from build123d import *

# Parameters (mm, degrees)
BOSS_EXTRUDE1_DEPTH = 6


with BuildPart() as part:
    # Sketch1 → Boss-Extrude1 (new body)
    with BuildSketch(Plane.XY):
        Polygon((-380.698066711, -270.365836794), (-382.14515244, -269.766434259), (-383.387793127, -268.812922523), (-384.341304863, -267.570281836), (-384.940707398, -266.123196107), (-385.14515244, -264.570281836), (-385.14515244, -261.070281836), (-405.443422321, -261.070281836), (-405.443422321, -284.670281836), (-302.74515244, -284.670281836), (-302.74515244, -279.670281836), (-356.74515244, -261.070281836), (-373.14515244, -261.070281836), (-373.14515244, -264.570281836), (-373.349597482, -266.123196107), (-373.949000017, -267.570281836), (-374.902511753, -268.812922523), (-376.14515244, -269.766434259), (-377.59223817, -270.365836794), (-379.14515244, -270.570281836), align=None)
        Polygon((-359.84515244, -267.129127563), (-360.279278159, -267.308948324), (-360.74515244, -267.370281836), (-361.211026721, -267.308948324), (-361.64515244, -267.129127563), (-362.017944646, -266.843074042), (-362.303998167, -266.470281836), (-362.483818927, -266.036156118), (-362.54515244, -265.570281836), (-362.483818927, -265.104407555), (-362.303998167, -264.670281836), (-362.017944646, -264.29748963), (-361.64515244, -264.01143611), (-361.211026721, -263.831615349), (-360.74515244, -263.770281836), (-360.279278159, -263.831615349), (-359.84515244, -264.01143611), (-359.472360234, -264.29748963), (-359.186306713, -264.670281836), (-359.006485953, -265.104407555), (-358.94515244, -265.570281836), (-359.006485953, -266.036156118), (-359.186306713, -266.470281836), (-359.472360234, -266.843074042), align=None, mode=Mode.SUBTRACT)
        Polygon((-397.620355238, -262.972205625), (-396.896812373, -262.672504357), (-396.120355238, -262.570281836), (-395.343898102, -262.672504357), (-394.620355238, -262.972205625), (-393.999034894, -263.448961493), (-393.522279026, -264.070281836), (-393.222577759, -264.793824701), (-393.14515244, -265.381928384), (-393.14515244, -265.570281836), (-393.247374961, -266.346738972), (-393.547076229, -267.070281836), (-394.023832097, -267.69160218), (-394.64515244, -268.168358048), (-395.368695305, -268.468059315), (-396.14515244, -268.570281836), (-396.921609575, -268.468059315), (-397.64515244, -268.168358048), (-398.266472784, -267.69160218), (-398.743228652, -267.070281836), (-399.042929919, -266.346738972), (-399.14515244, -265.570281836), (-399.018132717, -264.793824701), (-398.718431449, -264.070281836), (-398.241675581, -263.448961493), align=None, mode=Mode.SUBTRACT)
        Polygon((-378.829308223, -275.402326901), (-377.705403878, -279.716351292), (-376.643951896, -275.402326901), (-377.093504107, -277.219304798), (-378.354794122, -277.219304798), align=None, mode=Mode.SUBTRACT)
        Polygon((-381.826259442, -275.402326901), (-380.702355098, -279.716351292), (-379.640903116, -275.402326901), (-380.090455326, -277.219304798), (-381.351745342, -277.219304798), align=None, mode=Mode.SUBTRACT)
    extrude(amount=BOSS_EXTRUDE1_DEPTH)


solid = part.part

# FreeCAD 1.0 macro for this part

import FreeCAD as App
import Part
import Sketcher
Q = App.Units.Quantity


def add_polygon(sketch, points):
    """Adds a closed chain of lines whose ends are joined by coincident constraints."""
    first, n = sketch.GeometryCount, len(points)
    for a, b in zip(points, points[1:] + points[:1]):
        sketch.addGeometry(Part.LineSegment(App.Vector(*a, 0), App.Vector(*b, 0)), False)
    for i in range(n):
        sketch.addConstraint(Sketcher.Constraint("Coincident", first + i, 2, first + (i + 1) % n, 1))

doc = App.newDocument("Part")
body = doc.addObject("PartDesign::Body", "Body")

# Sketch on XY plane
sketch1 = body.newObject("Sketcher::SketchObject", "Sketch")
sketch1.AttachmentSupport = (doc.getObject("XY_Plane"), [""])
sketch1.MapMode = "FlatFace"
add_polygon(sketch1, [(-380.698067, -270.365837), (-382.145152, -269.766434), (-383.387793, -268.812923), (-384.341305, -267.570282), (-384.940707, -266.123196), (-385.145152, -264.570282), (-385.145152, -261.070282), (-405.443422, -261.070282), (-405.443422, -284.670282), (-302.745152, -284.670282), (-302.745152, -279.670282), (-356.745152, -261.070282), (-373.145152, -261.070282), (-373.145152, -264.570282), (-373.349597, -266.123196), (-373.949, -267.570282), (-374.902512, -268.812923), (-376.145152, -269.766434), (-377.592238, -270.365837), (-379.145152, -270.570282)])  # lines 0-19
add_polygon(sketch1, [(-380.702355, -279.716351), (-381.826259, -275.402327), (-381.351745, -277.219305), (-380.090455, -277.219305), (-379.640903, -275.402327)])  # lines 20-24
add_polygon(sketch1, [(-377.705404, -279.716351), (-378.829308, -275.402327), (-378.354794, -277.219305), (-377.093504, -277.219305), (-376.643952, -275.402327)])  # lines 25-29
add_polygon(sketch1, [(-398.241676, -263.448961), (-397.620355, -262.972206), (-396.896812, -262.672504), (-396.120355, -262.570282), (-395.343898, -262.672504), (-394.620355, -262.972206), (-393.999035, -263.448961), (-393.522279, -264.070282), (-393.222578, -264.793825), (-393.145152, -265.381928), (-393.145152, -265.570282), (-393.247375, -266.346739), (-393.547076, -267.070282), (-394.023832, -267.691602), (-394.645152, -268.168358), (-395.368695, -268.468059), (-396.145152, -268.570282), (-396.92161, -268.468059), (-397.645152, -268.168358), (-398.266473, -267.691602), (-398.743229, -267.070282), (-399.04293, -266.346739), (-399.145152, -265.570282), (-399.018133, -264.793825), (-398.718431, -264.070282)])  # lines 30-54
add_polygon(sketch1, [(-359.47236, -266.843074), (-359.845152, -267.129128), (-360.279278, -267.308948), (-360.745152, -267.370282), (-361.211027, -267.308948), (-361.645152, -267.129128), (-362.017945, -266.843074), (-362.303998, -266.470282), (-362.483819, -266.036156), (-362.545152, -265.570282), (-362.483819, -265.104408), (-362.303998, -264.670282), (-362.017945, -264.29749), (-361.645152, -264.011436), (-361.211027, -263.831615), (-360.745152, -263.770282), (-360.279278, -263.831615), (-359.845152, -264.011436), (-359.47236, -264.29749), (-359.186307, -264.670282), (-359.006486, -265.104408), (-358.945152, -265.570282), (-359.006486, -266.036156), (-359.186307, -266.470282)])  # lines 55-78
sketch1.addConstraint(Sketcher.Constraint("Vertical", 5))
sketch1.addConstraint(Sketcher.Constraint("Horizontal", 6))
sketch1.addConstraint(Sketcher.Constraint("Vertical", 7))
sketch1.addConstraint(Sketcher.Constraint("Horizontal", 8))
sketch1.addConstraint(Sketcher.Constraint("Vertical", 9))
sketch1.addConstraint(Sketcher.Constraint("Horizontal", 11))
sketch1.addConstraint(Sketcher.Constraint("Vertical", 12))
sketch1.addConstraint(Sketcher.Constraint("Horizontal", 22))
sketch1.addConstraint(Sketcher.Constraint("Horizontal", 27))
sketch1.addConstraint(Sketcher.Constraint("Vertical", 39))
sketch1.addConstraint(Sketcher.Constraint("Perpendicular", 0, 14))
sketch1.addConstraint(Sketcher.Constraint("Perpendicular", 1, 15))
sketch1.addConstraint(Sketcher.Constraint("Perpendicular", 2, 16))
sketch1.addConstraint(Sketcher.Constraint("Perpendicular", 3, 17))
sketch1.addConstraint(Sketcher.Constraint("Perpendicular", 4, 18))
sketch1.addConstraint(Sketcher.Constraint("Perpendicular", 13, 19))
sketch1.addConstraint(Sketcher.Constraint("Parallel", 20, 25))
sketch1.addConstraint(Sketcher.Constraint("Parallel", 21, 26))
sketch1.addConstraint(Sketcher.Constraint("Parallel", 23, 28))
sketch1.addConstraint(Sketcher.Constraint("Parallel", 24, 29))
sketch1.addConstraint(Sketcher.Constraint("Parallel", 16, 30))
sketch1.addConstraint(Sketcher.Constraint("Parallel", 17, 31))
sketch1.addConstraint(Sketcher.Constraint("Parallel", 18, 32))
sketch1.addConstraint(Sketcher.Constraint("Parallel", 19, 33))
sketch1.addConstraint(Sketcher.Constraint("Perpendicular", 14, 34))
sketch1.addConstraint(Sketcher.Constraint("Perpendicular", 15, 35))
sketch1.addConstraint(Sketcher.Constraint("Perpendicular", 30, 36))
sketch1.addConstraint(Sketcher.Constraint("Perpendicular", 31, 37))
sketch1.addConstraint(Sketcher.Constraint("Perpendicular", 32, 38))
sketch1.addConstraint(Sketcher.Constraint("Perpendicular", 33, 40))
sketch1.addConstraint(Sketcher.Constraint("Perpendicular", 34, 41))
sketch1.addConstraint(Sketcher.Constraint("Perpendicular", 35, 42))
sketch1.addConstraint(Sketcher.Constraint("Perpendicular", 36, 43))
sketch1.addConstraint(Sketcher.Constraint("Perpendicular", 37, 44))
sketch1.addConstraint(Sketcher.Constraint("Perpendicular", 38, 45))
sketch1.addConstraint(Sketcher.Constraint("Perpendicular", 40, 46))
sketch1.addConstraint(Sketcher.Constraint("Perpendicular", 41, 47))
sketch1.addConstraint(Sketcher.Constraint("Perpendicular", 42, 48))
sketch1.addConstraint(Sketcher.Constraint("Perpendicular", 43, 49))
sketch1.addConstraint(Sketcher.Constraint("Perpendicular", 44, 50))
sketch1.addConstraint(Sketcher.Constraint("Perpendicular", 45, 51))
sketch1.addConstraint(Sketcher.Constraint("Perpendicular", 47, 53))
sketch1.addConstraint(Sketcher.Constraint("Perpendicular", 48, 54))
sketch1.addConstraint(Sketcher.Constraint("Perpendicular", 49, 55))
sketch1.addConstraint(Sketcher.Constraint("Perpendicular", 50, 56))
sketch1.addConstraint(Sketcher.Constraint("Perpendicular", 51, 57))
sketch1.addConstraint(Sketcher.Constraint("Parallel", 46, 58))
sketch1.addConstraint(Sketcher.Constraint("Perpendicular", 53, 59))
sketch1.addConstraint(Sketcher.Constraint("Perpendicular", 54, 60))
sketch1.addConstraint(Sketcher.Constraint("Perpendicular", 55, 61))
sketch1.addConstraint(Sketcher.Constraint("Perpendicular", 56, 62))
sketch1.addConstraint(Sketcher.Constraint("Perpendicular", 57, 63))
sketch1.addConstraint(Sketcher.Constraint("Perpendicular", 58, 64))
sketch1.addConstraint(Sketcher.Constraint("Perpendicular", 59, 65))
sketch1.addConstraint(Sketcher.Constraint("Perpendicular", 60, 66))
sketch1.addConstraint(Sketcher.Constraint("Perpendicular", 61, 67))
sketch1.addConstraint(Sketcher.Constraint("Perpendicular", 62, 68))
sketch1.addConstraint(Sketcher.Constraint("Perpendicular", 63, 69))
sketch1.addConstraint(Sketcher.Constraint("Perpendicular", 64, 70))
sketch1.addConstraint(Sketcher.Constraint("Perpendicular", 65, 71))
sketch1.addConstraint(Sketcher.Constraint("Perpendicular", 66, 72))
sketch1.addConstraint(Sketcher.Constraint("Perpendicular", 67, 73))
sketch1.addConstraint(Sketcher.Constraint("Perpendicular", 68, 74))
sketch1.addConstraint(Sketcher.Constraint("Perpendicular", 69, 75))
sketch1.addConstraint(Sketcher.Constraint("Perpendicular", 70, 76))
sketch1.addConstraint(Sketcher.Constraint("Perpendicular", 71, 77))
sketch1.addConstraint(Sketcher.Constraint("Perpendicular", 72, 78))
sketch1.addConstraint(Sketcher.Constraint("Horizontal", 6, 2, 10, 2))
sketch1.addConstraint(Sketcher.Constraint("Horizontal", 4, 2, 12, 2))
sketch1.addConstraint(Sketcher.Constraint("Horizontal", 3, 2, 13, 2))
sketch1.addConstraint(Sketcher.Constraint("Horizontal", 2, 2, 14, 2))
sketch1.addConstraint(Sketcher.Constraint("Horizontal", 1, 2, 15, 2))
sketch1.addConstraint(Sketcher.Constraint("Horizontal", 0, 2, 16, 2))
sketch1.addConstraint(Sketcher.Constraint("Horizontal", 17, 2, 19, 2))
sketch1.addConstraint(Sketcher.Constraint("Horizontal", 20, 2, 23, 2))
sketch1.addConstraint(Sketcher.Constraint("Horizontal", 23, 2, 25, 2))
sketch1.addConstraint(Sketcher.Constraint("Horizontal", 22, 2, 26, 2))
sketch1.addConstraint(Sketcher.Constraint("Horizontal", 25, 2, 28, 2))
sketch1.addConstraint(Sketcher.Constraint("Horizontal", 24, 2, 29, 2))
sketch1.addConstraint(Sketcher.Constraint("Horizontal", 31, 2, 33, 2))
sketch1.addConstraint(Sketcher.Constraint("Horizontal", 30, 2, 34, 2))
sketch1.addConstraint(Sketcher.Constraint("Horizontal", 44, 2, 46, 2))
sketch1.addConstraint(Sketcher.Constraint("Horizontal", 43, 2, 47, 2))
sketch1.addConstraint(Sketcher.Constraint("Horizontal", 42, 2, 48, 2))
sketch1.addConstraint(Sketcher.Constraint("Horizontal", 41, 2, 49, 2))
sketch1.addConstraint(Sketcher.Constraint("Horizontal", 40, 2, 50, 2))
sketch1.addConstraint(Sketcher.Constraint("Horizontal", 39, 2, 51, 2))
sketch1.addConstraint(Sketcher.Constraint("Horizontal", 37, 2, 52, 2))
sketch1.addConstraint(Sketcher.Constraint("Horizontal", 36, 2, 53, 2))
sketch1.addConstraint(Sketcher.Constraint("Horizontal", 35, 2, 54, 2))
sketch1.addConstraint(Sketcher.Constraint("Horizontal", 56, 2, 58, 2))
sketch1.addConstraint(Sketcher.Constraint("Horizontal", 55, 2, 59, 2))
sketch1.addConstraint(Sketcher.Constraint("Horizontal", 51, 2, 63, 2))
sketch1.addConstraint(Sketcher.Constraint("Horizontal", 68, 2, 70, 2))
sketch1.addConstraint(Sketcher.Constraint("Horizontal", 67, 2, 71, 2))
sketch1.addConstraint(Sketcher.Constraint("Horizontal", 66, 2, 72, 2))
sketch1.addConstraint(Sketcher.Constraint("Horizontal", 65, 2, 73, 2))
sketch1.addConstraint(Sketcher.Constraint("Horizontal", 64, 2, 74, 2))
sketch1.addConstraint(Sketcher.Constraint("Horizontal", 63, 2, 75, 2))
sketch1.addConstraint(Sketcher.Constraint("Horizontal", 62, 2, 76, 2))
sketch1.addConstraint(Sketcher.Constraint("Horizontal", 61, 2, 77, 2))
sketch1.addConstraint(Sketcher.Constraint("Horizontal", 60, 2, 78, 2))
sketch1.addConstraint(Sketcher.Constraint("Vertical", 62, 2, 64, 2))
sketch1.addConstraint(Sketcher.Constraint("Vertical", 61, 2, 65, 2))
sketch1.addConstraint(Sketcher.Constraint("Vertical", 60, 2, 66, 2))
sketch1.addConstraint(Sketcher.Constraint("Vertical", 59, 2, 67, 2))
sketch1.addConstraint(Sketcher.Constraint("Vertical", 58, 2, 68, 2))
sketch1.addConstraint(Sketcher.Constraint("Vertical", 57, 2, 69, 2))
sketch1.addConstraint(Sketcher.Constraint("Vertical", 56, 2, 70, 2))
sketch1.addConstraint(Sketcher.Constraint("Vertical", 55, 2, 71, 2))
sketch1.addConstraint(Sketcher.Constraint("Equal", 0, 1))
sketch1.addConstraint(Sketcher.Constraint("Equal", 1, 2))
sketch1.addConstraint(Sketcher.Constraint("Equal", 2, 3))
sketch1.addConstraint(Sketcher.Constraint("Equal", 3, 4))
sketch1.addConstraint(Sketcher.Constraint("Equal", 17, 18))
sketch1.addConstraint(Sketcher.Constraint("Equal", 30, 31))
sketch1.addConstraint(Sketcher.Constraint("Equal", 31, 32))
sketch1.addConstraint(Sketcher.Constraint("Equal", 35, 36))
sketch1.addConstraint(Sketcher.Constraint("Equal", 36, 37))
sketch1.addConstraint(Sketcher.Constraint("Equal", 37, 40))
sketch1.addConstraint(Sketcher.Constraint("Equal", 40, 41))
sketch1.addConstraint(Sketcher.Constraint("Equal", 41, 42))
sketch1.addConstraint(Sketcher.Constraint("Equal", 42, 43))
sketch1.addConstraint(Sketcher.Constraint("Equal", 43, 44))
sketch1.addConstraint(Sketcher.Constraint("Equal", 44, 45))
sketch1.addConstraint(Sketcher.Constraint("Equal", 55, 56))
sketch1.addConstraint(Sketcher.Constraint("Equal", 56, 57))
sketch1.addConstraint(Sketcher.Constraint("Equal", 60, 61))
sketch1.addConstraint(Sketcher.Constraint("Equal", 61, 62))
sketch1.addConstraint(Sketcher.Constraint("Equal", 62, 63))
sketch1.addConstraint(Sketcher.Constraint("DistanceY", 9, 1, 9, 2, 5.0))
sketch1.addConstraint(Sketcher.Constraint("DistanceX", 11, 2, 11, 1, 16.4))
sketch1.addConstraint(Sketcher.Constraint("DistanceY", 5, 1, 5, 2, 3.5))
sketch1.addConstraint(Sketcher.Constraint("DistanceY", 7, 2, 7, 1, 23.6))
sketch1.addConstraint(Sketcher.Constraint("Angle", 0, Q("157.5 deg")))
sketch1.addConstraint(Sketcher.Constraint("Angle", 1, Q("142.5 deg")))
sketch1.addConstraint(Sketcher.Constraint("Angle", 4, Q("97.5 deg")))
sketch1.addConstraint(Sketcher.Constraint("DistanceX", 14, 2, -1, 1, 373.949))
sketch1.addConstraint(Sketcher.Constraint("DistanceX", 61, 2, -1, 1, 362.303998))
sketch1.addConstraint(Sketcher.Constraint("DistanceX", 6, 2, 6, 1, 20.29827))
sketch1.addConstraint(Sketcher.Constraint("DistanceX", 8, 1, 8, 2, 102.69827))
sketch1.addConstraint(Sketcher.Constraint("DistanceX", 22, 1, 22, 2, 1.26129))
sketch1.addConstraint(Sketcher.Constraint("DistanceX", 33, 2, -1, 1, 395.343898))
sketch1.addConstraint(Sketcher.Constraint("Distance", 10, 57.113571))
sketch1.addConstraint(Sketcher.Constraint("Distance", 24, 4.442689))
sketch1.addConstraint(Sketcher.Constraint("Distance", 38, 0.593178))
sketch1.addConstraint(Sketcher.Constraint("Distance", 52, 0.786778))
sketch1.addConstraint(Sketcher.Constraint("DistanceY", 2, 2, -1, 1, 267.570282))
sketch1.addConstraint(Sketcher.Constraint("DistanceX", 20, 2, -1, 1, 381.826259))
sketch1.addConstraint(Sketcher.Constraint("DistanceY", 24, 2, -1, 1, 279.716351))
sketch1.addConstraint(Sketcher.Constraint("DistanceX", 25, 2, -1, 1, 378.829308))
sketch1.addConstraint(Sketcher.Constraint("DistanceX", 28, 2, -1, 1, 376.643952))
sketch1.addConstraint(Sketcher.Constraint("DistanceY", 32, 2, -1, 1, 262.570282))
sketch1.addConstraint(Sketcher.Constraint("DistanceY", 35, 2, -1, 1, 263.448961))
sketch1.addConstraint(Sketcher.Constraint("DistanceX", 56, 2, -1, 1, 360.279278))
sketch1.addConstraint(Sketcher.Constraint("Distance", 20, 4.458023))
sketch1.addConstraint(Sketcher.Constraint("Distance", 21, 1.877917))
sketch1.addConstraint(Sketcher.Constraint("Distance", 23, 1.871765))
pad1 = body.newObject("PartDesign::Pad", "Pad")
pad1.Profile = sketch1
pad1.Length = 6

doc.recompute()
